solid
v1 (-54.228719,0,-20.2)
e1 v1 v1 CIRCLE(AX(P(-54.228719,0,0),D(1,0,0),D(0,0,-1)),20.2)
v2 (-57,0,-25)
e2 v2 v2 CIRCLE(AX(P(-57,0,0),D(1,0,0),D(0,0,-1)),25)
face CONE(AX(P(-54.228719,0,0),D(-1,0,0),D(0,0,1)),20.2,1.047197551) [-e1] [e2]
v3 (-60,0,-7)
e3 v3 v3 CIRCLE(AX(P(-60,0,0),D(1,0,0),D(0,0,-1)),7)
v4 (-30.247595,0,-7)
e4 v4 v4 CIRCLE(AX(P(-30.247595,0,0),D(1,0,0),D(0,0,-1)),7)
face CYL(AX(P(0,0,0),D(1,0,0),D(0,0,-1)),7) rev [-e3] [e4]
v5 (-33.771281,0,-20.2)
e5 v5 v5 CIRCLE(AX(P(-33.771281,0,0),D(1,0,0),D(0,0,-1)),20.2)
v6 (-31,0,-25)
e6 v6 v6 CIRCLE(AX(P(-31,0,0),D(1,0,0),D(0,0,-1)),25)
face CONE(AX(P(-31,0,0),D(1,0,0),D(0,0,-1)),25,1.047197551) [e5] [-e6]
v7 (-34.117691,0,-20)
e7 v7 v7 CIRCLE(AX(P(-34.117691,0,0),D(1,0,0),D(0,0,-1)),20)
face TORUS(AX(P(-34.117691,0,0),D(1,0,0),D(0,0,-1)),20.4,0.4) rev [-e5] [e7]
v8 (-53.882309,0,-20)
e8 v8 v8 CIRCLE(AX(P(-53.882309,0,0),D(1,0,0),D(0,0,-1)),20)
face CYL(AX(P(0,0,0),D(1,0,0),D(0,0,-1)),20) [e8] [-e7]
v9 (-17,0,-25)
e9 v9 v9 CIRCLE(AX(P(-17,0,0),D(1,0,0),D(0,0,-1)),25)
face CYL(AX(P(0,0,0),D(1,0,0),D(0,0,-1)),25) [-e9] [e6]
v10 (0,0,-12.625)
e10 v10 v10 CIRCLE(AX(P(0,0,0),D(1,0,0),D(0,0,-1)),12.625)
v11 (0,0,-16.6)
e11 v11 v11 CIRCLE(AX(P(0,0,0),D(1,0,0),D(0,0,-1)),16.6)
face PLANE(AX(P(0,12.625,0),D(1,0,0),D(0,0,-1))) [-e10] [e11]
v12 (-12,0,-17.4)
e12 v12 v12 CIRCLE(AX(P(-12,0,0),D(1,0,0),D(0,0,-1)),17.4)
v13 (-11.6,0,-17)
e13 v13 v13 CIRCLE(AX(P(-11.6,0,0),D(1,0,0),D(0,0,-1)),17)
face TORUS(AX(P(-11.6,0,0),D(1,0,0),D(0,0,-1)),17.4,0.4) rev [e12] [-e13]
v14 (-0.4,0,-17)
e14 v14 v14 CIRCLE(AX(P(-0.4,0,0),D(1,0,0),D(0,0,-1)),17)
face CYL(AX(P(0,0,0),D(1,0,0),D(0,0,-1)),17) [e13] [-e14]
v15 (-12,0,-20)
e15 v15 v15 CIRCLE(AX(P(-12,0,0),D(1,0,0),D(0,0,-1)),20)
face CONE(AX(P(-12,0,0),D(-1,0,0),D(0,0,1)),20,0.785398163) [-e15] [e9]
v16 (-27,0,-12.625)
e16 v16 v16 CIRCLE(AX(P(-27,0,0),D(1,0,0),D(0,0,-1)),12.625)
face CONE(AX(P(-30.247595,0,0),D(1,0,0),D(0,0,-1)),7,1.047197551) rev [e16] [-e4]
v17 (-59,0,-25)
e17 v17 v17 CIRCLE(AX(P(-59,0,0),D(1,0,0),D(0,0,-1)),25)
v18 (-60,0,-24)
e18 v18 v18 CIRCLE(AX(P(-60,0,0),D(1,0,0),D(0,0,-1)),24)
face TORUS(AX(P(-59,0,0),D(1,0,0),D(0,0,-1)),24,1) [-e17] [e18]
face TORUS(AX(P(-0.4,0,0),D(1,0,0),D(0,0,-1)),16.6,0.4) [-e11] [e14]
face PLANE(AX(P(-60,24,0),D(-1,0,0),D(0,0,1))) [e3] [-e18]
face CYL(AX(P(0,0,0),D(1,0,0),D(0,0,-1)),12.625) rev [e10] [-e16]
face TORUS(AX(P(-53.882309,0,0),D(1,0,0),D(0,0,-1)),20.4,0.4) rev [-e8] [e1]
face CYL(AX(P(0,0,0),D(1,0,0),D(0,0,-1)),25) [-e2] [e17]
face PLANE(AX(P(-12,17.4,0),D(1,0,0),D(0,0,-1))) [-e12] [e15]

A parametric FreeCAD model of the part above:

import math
import FreeCAD as App
import Part
import Sketcher

V = App.Vector
Q = App.Units.Quantity

doc = App.newDocument("Part")
body = doc.addObject("PartDesign::Body", "Body")

sketch1 = body.newObject("Sketcher::SketchObject", "Sketch")
sketch1.AttachmentSupport = (doc.getObject("XY_Plane"), [""])
sketch1.MapMode = "FlatFace"
sketch1.addGeometry([
    Part.LineSegment(V(0, 12.62, 0), V(0, 16.6, 0)),
    Part.ArcOfCircle(Part.Circle(V(-0.4, 16.6, 0), V(0, 0, 1), 0.4), math.radians(0), math.radians(90)),
    Part.LineSegment(V(-0.4, 17, 0), V(-11.6, 17, 0)),
    Part.ArcOfCircle(Part.Circle(V(-11.6, 17.4, 0), V(0, 0, 1), 0.4), math.radians(-180), math.radians(-90)),
    Part.LineSegment(V(-12, 17.4, 0), V(-12, 20, 0)),
    Part.LineSegment(V(-12, 20, 0), V(-17, 25, 0)),
    Part.LineSegment(V(-17, 25, 0), V(-31, 25, 0)),
    Part.LineSegment(V(-31, 25, 0), V(-33.77, 20.2, 0)),
    Part.ArcOfCircle(Part.Circle(V(-34.12, 20.4, 0), V(0, 0, 1), 0.4), math.radians(-90), math.radians(-30)),
    Part.LineSegment(V(-34.12, 20, 0), V(-53.88, 20, 0)),
    Part.ArcOfCircle(Part.Circle(V(-53.88, 20.4, 0), V(0, 0, 1), 0.4), math.radians(-150), math.radians(-90)),
    Part.LineSegment(V(-54.23, 20.2, 0), V(-57, 25, 0)),
    Part.LineSegment(V(-57, 25, 0), V(-59, 25, 0)),
    Part.ArcOfCircle(Part.Circle(V(-59, 24, 0), V(0, 0, 1), 1), math.radians(90), math.radians(180)),
    Part.LineSegment(V(-60, 24, 0), V(-60, 7, 0)),
    Part.LineSegment(V(-60, 7, 0), V(-30.25, 7, 0)),
    Part.LineSegment(V(-30.25, 7, 0), V(-27, 12.62, 0)),
    Part.LineSegment(V(-27, 12.62, 0), V(0, 12.62, 0)),
], False)
sketch1.addConstraint([
    Sketcher.Constraint("Tangent", 0, 2, 1, 1),
    Sketcher.Constraint("Tangent", 1, 2, 2, 1),
    Sketcher.Constraint("Tangent", 2, 2, 3, 2),
    Sketcher.Constraint("Tangent", 3, 1, 4, 1),
    Sketcher.Constraint("Coincident", 4, 2, 5, 1),
    Sketcher.Constraint("Coincident", 5, 2, 6, 1),
    Sketcher.Constraint("Coincident", 6, 2, 7, 1),
    Sketcher.Constraint("Tangent", 7, 2, 8, 2),
    Sketcher.Constraint("Tangent", 8, 1, 9, 1),
    Sketcher.Constraint("Tangent", 9, 2, 10, 2),
    Sketcher.Constraint("Tangent", 10, 1, 11, 1),
    Sketcher.Constraint("Coincident", 11, 2, 12, 1),
    Sketcher.Constraint("Tangent", 12, 2, 13, 1),
    Sketcher.Constraint("Tangent", 13, 2, 14, 1),
    Sketcher.Constraint("Coincident", 14, 2, 15, 1),
    Sketcher.Constraint("Coincident", 15, 2, 16, 1),
    Sketcher.Constraint("Coincident", 16, 2, 17, 1),
    Sketcher.Constraint("Coincident", 17, 2, 0, 1),
    Sketcher.Constraint("Vertical", 0),
    Sketcher.Constraint("Horizontal", 2),
    Sketcher.Constraint("Vertical", 4),
    Sketcher.Constraint("Horizontal", 6),
    Sketcher.Constraint("Horizontal", 9),
    Sketcher.Constraint("Horizontal", 12),
    Sketcher.Constraint("Vertical", 14),
    Sketcher.Constraint("Horizontal", 15),
    Sketcher.Constraint("Horizontal", 17),
    Sketcher.Constraint("Equal", 1, 3),
    Sketcher.Constraint("Equal", 3, 8),
    Sketcher.Constraint("Equal", 8, 10),
    Sketcher.Constraint("PointOnObject", 0, 2, -2),
    Sketcher.Constraint("Parallel", 7, 16),
    Sketcher.Constraint("Horizontal", 4, 2, 8, 1),
    Sketcher.Constraint("Horizontal", 7, 2, 10, 1),
    Sketcher.Constraint("Horizontal", 6, 2, 11, 2),
    Sketcher.Constraint("Radius", 13, Q("1 mm")),
    Sketcher.Constraint("Radius", 1, Q("0.4 mm")),
    Sketcher.Constraint("DistanceX", 6, 2, 6, 1, Q("14 mm")),
    Sketcher.Constraint("DistanceX", 12, 2, 12, 1, Q("2 mm")),
    Sketcher.Constraint("DistanceX", 17, 1, 17, 2, Q("27 mm")),
    Sketcher.Constraint("DistanceY", 14, 2, 14, 1, Q("17 mm")),
    Sketcher.Constraint("Angle", 5, Q("135 deg")),
    Sketcher.Constraint("Angle", 7, Q("-120 deg")),
    Sketcher.Constraint("DistanceX", 2, 2, 2, 1, Q("11.2 mm")),
    Sketcher.Constraint("DistanceY", 4, 1, 4, 2, Q("2.6 mm")),
    Sketcher.Constraint("DistanceX", 13, 3, -1, 1, Q("59 mm")),
    Sketcher.Constraint("DistanceY", -1, 1, 13, 3, Q("24 mm")),
    Sketcher.Constraint("DistanceY", -1, 1, 1, 2, Q("17 mm")),
    Sketcher.Constraint("DistanceY", 0, 1, 0, 2, Q("3.975 mm")),
])
revolution = body.newObject("PartDesign::Revolution", "Revolution")
revolution.Profile = sketch1
revolution.ReferenceAxis = (sketch1, ["H_Axis"])
revolution.Angle = 360

doc.recompute()
